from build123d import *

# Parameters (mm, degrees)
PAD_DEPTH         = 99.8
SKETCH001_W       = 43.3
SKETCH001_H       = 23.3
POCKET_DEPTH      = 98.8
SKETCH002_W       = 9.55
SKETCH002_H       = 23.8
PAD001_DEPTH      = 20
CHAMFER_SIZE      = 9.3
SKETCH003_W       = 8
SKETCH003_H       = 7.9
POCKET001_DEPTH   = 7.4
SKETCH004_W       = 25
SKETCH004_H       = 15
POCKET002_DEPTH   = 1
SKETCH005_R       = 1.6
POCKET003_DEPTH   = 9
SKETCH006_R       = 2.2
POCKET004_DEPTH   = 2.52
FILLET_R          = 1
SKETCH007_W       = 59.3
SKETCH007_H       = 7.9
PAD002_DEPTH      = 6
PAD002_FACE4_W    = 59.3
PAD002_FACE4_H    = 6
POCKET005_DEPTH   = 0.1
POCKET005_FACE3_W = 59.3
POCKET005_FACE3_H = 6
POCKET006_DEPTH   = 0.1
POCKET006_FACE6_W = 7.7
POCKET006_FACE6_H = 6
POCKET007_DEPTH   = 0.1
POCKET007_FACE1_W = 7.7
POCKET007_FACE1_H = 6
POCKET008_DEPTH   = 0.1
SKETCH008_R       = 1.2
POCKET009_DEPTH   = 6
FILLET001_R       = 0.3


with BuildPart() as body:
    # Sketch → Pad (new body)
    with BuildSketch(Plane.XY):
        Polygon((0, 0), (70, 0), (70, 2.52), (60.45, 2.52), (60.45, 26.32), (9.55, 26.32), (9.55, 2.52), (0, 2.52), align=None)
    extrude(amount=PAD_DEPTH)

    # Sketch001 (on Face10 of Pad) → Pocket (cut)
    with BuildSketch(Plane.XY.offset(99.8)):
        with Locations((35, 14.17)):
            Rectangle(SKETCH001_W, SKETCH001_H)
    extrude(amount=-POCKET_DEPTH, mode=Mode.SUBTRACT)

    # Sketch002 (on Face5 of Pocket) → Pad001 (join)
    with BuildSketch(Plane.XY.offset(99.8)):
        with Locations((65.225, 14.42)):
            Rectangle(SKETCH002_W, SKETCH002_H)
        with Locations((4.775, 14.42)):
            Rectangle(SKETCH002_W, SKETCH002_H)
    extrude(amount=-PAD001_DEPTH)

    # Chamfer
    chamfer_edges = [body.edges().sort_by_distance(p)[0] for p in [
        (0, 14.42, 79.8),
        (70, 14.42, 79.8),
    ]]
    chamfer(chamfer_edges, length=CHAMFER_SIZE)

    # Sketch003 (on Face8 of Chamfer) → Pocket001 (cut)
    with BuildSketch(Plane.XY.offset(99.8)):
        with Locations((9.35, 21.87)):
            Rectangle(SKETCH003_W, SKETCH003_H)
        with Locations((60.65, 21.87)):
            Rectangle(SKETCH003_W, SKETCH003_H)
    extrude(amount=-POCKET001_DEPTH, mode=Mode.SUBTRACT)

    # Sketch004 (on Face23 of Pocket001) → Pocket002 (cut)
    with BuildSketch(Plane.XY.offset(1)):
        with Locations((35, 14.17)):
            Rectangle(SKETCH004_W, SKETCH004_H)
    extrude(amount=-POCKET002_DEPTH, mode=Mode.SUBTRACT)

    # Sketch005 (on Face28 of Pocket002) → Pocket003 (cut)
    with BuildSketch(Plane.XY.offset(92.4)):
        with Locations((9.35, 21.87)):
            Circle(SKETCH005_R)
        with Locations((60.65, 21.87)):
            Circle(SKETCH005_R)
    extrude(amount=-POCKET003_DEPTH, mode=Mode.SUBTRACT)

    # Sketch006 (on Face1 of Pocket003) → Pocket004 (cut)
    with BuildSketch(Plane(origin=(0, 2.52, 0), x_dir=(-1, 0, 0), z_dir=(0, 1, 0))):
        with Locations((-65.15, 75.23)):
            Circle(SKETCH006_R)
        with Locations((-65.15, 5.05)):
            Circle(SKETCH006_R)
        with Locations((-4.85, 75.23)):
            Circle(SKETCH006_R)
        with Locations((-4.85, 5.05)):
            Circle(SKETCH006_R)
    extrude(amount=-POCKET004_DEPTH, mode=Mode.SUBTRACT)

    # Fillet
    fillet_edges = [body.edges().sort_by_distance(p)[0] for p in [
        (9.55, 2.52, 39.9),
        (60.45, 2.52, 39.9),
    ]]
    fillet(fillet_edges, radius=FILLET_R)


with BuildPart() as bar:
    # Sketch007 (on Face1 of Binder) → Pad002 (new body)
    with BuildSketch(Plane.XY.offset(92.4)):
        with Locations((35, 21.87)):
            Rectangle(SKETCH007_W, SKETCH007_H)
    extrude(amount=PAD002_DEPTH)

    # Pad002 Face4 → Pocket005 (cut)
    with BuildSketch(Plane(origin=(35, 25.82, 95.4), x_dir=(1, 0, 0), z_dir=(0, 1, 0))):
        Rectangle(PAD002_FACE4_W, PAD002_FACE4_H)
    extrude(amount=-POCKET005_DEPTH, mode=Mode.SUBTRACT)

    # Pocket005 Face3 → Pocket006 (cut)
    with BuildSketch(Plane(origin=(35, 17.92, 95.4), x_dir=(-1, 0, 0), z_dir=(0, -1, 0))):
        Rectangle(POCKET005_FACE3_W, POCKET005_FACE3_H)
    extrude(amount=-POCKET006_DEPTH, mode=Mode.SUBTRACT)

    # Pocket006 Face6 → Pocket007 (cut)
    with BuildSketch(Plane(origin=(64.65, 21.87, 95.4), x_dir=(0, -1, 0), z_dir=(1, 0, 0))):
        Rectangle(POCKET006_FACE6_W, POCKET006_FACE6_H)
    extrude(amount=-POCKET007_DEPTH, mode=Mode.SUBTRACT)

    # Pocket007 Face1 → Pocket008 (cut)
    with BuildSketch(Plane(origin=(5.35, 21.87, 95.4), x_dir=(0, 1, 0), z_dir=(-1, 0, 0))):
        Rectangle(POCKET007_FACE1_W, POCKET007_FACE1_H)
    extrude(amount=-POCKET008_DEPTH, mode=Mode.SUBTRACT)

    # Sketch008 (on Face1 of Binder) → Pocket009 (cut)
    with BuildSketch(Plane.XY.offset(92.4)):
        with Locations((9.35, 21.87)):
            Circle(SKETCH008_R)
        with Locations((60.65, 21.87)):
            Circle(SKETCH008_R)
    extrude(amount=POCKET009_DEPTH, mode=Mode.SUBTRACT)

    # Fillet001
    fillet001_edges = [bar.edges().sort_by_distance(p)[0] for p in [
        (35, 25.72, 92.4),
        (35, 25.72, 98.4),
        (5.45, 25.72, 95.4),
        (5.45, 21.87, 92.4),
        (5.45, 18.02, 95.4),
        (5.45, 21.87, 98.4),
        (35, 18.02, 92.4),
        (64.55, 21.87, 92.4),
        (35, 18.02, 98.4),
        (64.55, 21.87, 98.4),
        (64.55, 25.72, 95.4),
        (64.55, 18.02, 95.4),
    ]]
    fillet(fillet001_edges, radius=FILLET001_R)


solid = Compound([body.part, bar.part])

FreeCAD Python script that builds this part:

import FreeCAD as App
import Part
import Sketcher
from FreeCAD import Vector
Q = App.Units.Quantity


def edges_at(feature, points):
    """Names of the edges that pass closest to the given points."""
    edges = feature.Shape.Edges
    near = lambda p: min(range(len(edges)), key=lambda i: edges[i].distToShape(Part.Vertex(*p))[0])
    return sorted({f"Edge{near(p) + 1}" for p in points})


def add_polygon(sketch, points):
    """Adds a closed chain of lines whose ends are joined by coincident constraints."""
    first, n = sketch.GeometryCount, len(points)
    for a, b in zip(points, points[1:] + points[:1]):
        sketch.addGeometry(Part.LineSegment(App.Vector(*a, 0), App.Vector(*b, 0)), False)
    for i in range(n):
        sketch.addConstraint(Sketcher.Constraint("Coincident", first + i, 2, first + (i + 1) % n, 1))

doc = App.newDocument("Part")
body = doc.addObject("PartDesign::Body", "Body")

sketch1 = doc.addObject("Sketcher::SketchObject", "Sketch")
body.addObject(sketch1)
sketch1.AttachmentSupport = (doc.XY_Plane, [""])
sketch1.MapMode = "FlatFace"
add_polygon(sketch1, [(0, 0), (70, 0), (70, 2.52), (60.45, 2.52), (60.45, 26.32), (9.55, 26.32), (9.55, 2.52), (0, 2.52)])
sketch1.addConstraint([
    Sketcher.Constraint("Horizontal", 0),
    Sketcher.Constraint("Vertical", 1),
    Sketcher.Constraint("Horizontal", 2),
    Sketcher.Constraint("Vertical", 3),
    Sketcher.Constraint("Horizontal", 4),
    Sketcher.Constraint("Vertical", 5),
    Sketcher.Constraint("Horizontal", 6),
    Sketcher.Constraint("Vertical", 7),
    Sketcher.Constraint("Coincident", 7, 2, -1, 1),
    Sketcher.Constraint("Horizontal", 2, 2, 5, 2),
    Sketcher.Constraint("Equal", 2, 6),
    Sketcher.Constraint("DistanceX", 0, 1, 0, 2, Q("70 mm")),
    Sketcher.Constraint("DistanceX", 4, 2, 4, 1, Q("50.9 mm")),
    Sketcher.Constraint("DistanceY", 3, 1, 3, 2, Q("23.8 mm")),
    Sketcher.Constraint("DistanceY", 1, 1, 1, 2, Q("2.52 mm")),
])
pad1 = doc.addObject("PartDesign::Pad", "Pad")
body.addObject(pad1)
pad1.Profile = sketch1
pad1.Length = 99.8

sketch2 = doc.addObject("Sketcher::SketchObject", "Sketch001")
body.addObject(sketch2)
sketch2.AttachmentSupport = (doc.XY_Plane, [""])
sketch2.MapMode = "FlatFace"
sketch2.AttachmentOffset = App.Placement(Vector(0, 0, 99.8), App.Rotation())
add_polygon(sketch2, [(13.35, 25.82), (13.35, 2.52), (56.65, 2.52), (56.65, 25.82)])
sketch2.addConstraint([
    Sketcher.Constraint("Vertical", 0),
    Sketcher.Constraint("Horizontal", 1),
    Sketcher.Constraint("Vertical", 2),
    Sketcher.Constraint("Horizontal", 3),
    Sketcher.Constraint("DistanceX", 1, 1, 1, 2, Q("43.3 mm")),
    Sketcher.Constraint("DistanceY", 0, 2, 0, 1, Q("23.3 mm")),
    Sketcher.Constraint("DistanceX", -1, 1, 0, 2, Q("13.35 mm")),
    Sketcher.Constraint("DistanceY", -1, 1, 0, 2, Q("2.52 mm")),
])
pocket1 = doc.addObject("PartDesign::Pocket", "Pocket")
body.addObject(pocket1)
pocket1.Profile = sketch2
pocket1.Length = 98.8

sketch3 = doc.addObject("Sketcher::SketchObject", "Sketch002")
body.addObject(sketch3)
sketch3.AttachmentSupport = (doc.XY_Plane, [""])
sketch3.MapMode = "FlatFace"
sketch3.AttachmentOffset = App.Placement(Vector(0, 0, 99.8), App.Rotation())
add_polygon(sketch3, [(60.45, 26.32), (60.45, 2.52), (70, 2.52), (70, 26.32)])
add_polygon(sketch3, [(0, 26.32), (0, 2.52), (9.55, 2.52), (9.55, 26.32)])
sketch3.addConstraint([
    Sketcher.Constraint("Vertical", 0),
    Sketcher.Constraint("Horizontal", 1),
    Sketcher.Constraint("Vertical", 2),
    Sketcher.Constraint("Horizontal", 3),
    Sketcher.Constraint("Vertical", 4),
    Sketcher.Constraint("Horizontal", 5),
    Sketcher.Constraint("Vertical", 6),
    Sketcher.Constraint("Horizontal", 7),
    Sketcher.Constraint("PointOnObject", 4, 2, -2),
    Sketcher.Constraint("Horizontal", 1, 2, 4, 2),
    Sketcher.Constraint("Horizontal", 3, 2, 6, 2),
    Sketcher.Constraint("Equal", 3, 5),
    Sketcher.Constraint("DistanceY", 0, 2, 0, 1, Q("23.8 mm")),
    Sketcher.Constraint("DistanceX", -1, 1, 1, 2, Q("70 mm")),
    Sketcher.Constraint("DistanceX", 1, 1, 1, 2, Q("9.55 mm")),
    Sketcher.Constraint("DistanceY", -1, 1, 0, 2, Q("2.52 mm")),
])
pad2 = doc.addObject("PartDesign::Pad", "Pad001")
body.addObject(pad2)
pad2.Profile = sketch3
pad2.Length = 20
pad2.Reversed = True
doc.recompute()

chamfer = doc.addObject("PartDesign::Chamfer", "Chamfer")
body.addObject(chamfer)
chamfer.Base = (pad2, edges_at(pad2, [(0, 14.42, 79.8), (70, 14.42, 79.8)]))
chamfer.Size = 9.3

sketch4 = doc.addObject("Sketcher::SketchObject", "Sketch003")
body.addObject(sketch4)
sketch4.AttachmentSupport = (doc.XY_Plane, [""])
sketch4.MapMode = "FlatFace"
sketch4.AttachmentOffset = App.Placement(Vector(0, 0, 99.8), App.Rotation())
add_polygon(sketch4, [(5.35, 25.82), (5.35, 17.92), (13.35, 17.92), (13.35, 25.82)])
add_polygon(sketch4, [(56.65, 25.82), (56.65, 17.92), (64.65, 17.92), (64.65, 25.82)])
sketch4.addConstraint([
    Sketcher.Constraint("Vertical", 0),
    Sketcher.Constraint("Horizontal", 1),
    Sketcher.Constraint("Vertical", 2),
    Sketcher.Constraint("Horizontal", 3),
    Sketcher.Constraint("Vertical", 4),
    Sketcher.Constraint("Horizontal", 5),
    Sketcher.Constraint("Vertical", 6),
    Sketcher.Constraint("Horizontal", 7),
    Sketcher.Constraint("Horizontal", 1, 2, 4, 2),
    Sketcher.Constraint("Horizontal", 3, 2, 6, 2),
    Sketcher.Constraint("Equal", 3, 5),
    Sketcher.Constraint("DistanceX", 1, 1, 1, 2, Q("8 mm")),
    Sketcher.Constraint("DistanceY", 0, 2, 0, 1, Q("7.9 mm")),
    Sketcher.Constraint("DistanceX", 1, 2, 4, 2, Q("43.3 mm")),
    Sketcher.Constraint("DistanceX", -1, 1, 0, 2, Q("5.35 mm")),
    Sketcher.Constraint("DistanceY", -1, 1, 0, 2, Q("17.92 mm")),
])
pocket2 = doc.addObject("PartDesign::Pocket", "Pocket001")
body.addObject(pocket2)
pocket2.Profile = sketch4
pocket2.Length = 7.4

sketch5 = doc.addObject("Sketcher::SketchObject", "Sketch004")
body.addObject(sketch5)
sketch5.AttachmentSupport = (doc.XY_Plane, [""])
sketch5.MapMode = "FlatFace"
sketch5.AttachmentOffset = App.Placement(Vector(0, 0, 1), App.Rotation())
add_polygon(sketch5, [(22.5, 21.67), (22.5, 6.67), (47.5, 6.67), (47.5, 21.67)])
sketch5.addConstraint([
    Sketcher.Constraint("Vertical", 0),
    Sketcher.Constraint("Horizontal", 1),
    Sketcher.Constraint("Vertical", 2),
    Sketcher.Constraint("Horizontal", 3),
    Sketcher.Constraint("DistanceX", 1, 1, 1, 2, Q("25 mm")),
    Sketcher.Constraint("DistanceY", 0, 2, 0, 1, Q("15 mm")),
    Sketcher.Constraint("DistanceX", -1, 1, 0, 2, Q("22.5 mm")),
    Sketcher.Constraint("DistanceY", -1, 1, 0, 2, Q("6.67 mm")),
])
pocket3 = doc.addObject("PartDesign::Pocket", "Pocket002")
body.addObject(pocket3)
pocket3.Profile = sketch5
pocket3.Length = 1

sketch6 = doc.addObject("Sketcher::SketchObject", "Sketch005")
body.addObject(sketch6)
sketch6.AttachmentSupport = (doc.XY_Plane, [""])
sketch6.MapMode = "FlatFace"
sketch6.AttachmentOffset = App.Placement(Vector(0, 0, 92.4), App.Rotation())
sketch6.addGeometry([
    Part.Circle(Vector(9.35, 21.87, 0), Vector(0, 0, 1), 1.6),
    Part.Circle(Vector(60.65, 21.87, 0), Vector(0, 0, 1), 1.6),
], False)
sketch6.addConstraint([
    Sketcher.Constraint("Equal", 0, 1),
    Sketcher.Constraint("Horizontal", 0, 3, 1, 3),
    Sketcher.Constraint("Diameter", 0, Q("3.2 mm")),
    Sketcher.Constraint("DistanceX", 0, 3, 1, 3, Q("51.3 mm")),
    Sketcher.Constraint("DistanceX", -1, 1, 0, 3, Q("9.35 mm")),
    Sketcher.Constraint("DistanceY", -1, 1, 0, 3, Q("21.87 mm")),
])
pocket4 = doc.addObject("PartDesign::Pocket", "Pocket003")
body.addObject(pocket4)
pocket4.Profile = sketch6
pocket4.Length = 9

sketch7 = doc.addObject("Sketcher::SketchObject", "Sketch006")
body.addObject(sketch7)
sketch7.AttachmentSupport = (doc.XZ_Plane, [""])
sketch7.MapMode = "FlatFace"
sketch7.AttachmentOffset = App.Placement(Vector(0, 0, -2.52), App.Rotation())
sketch7.addGeometry([
    Part.Circle(Vector(65.15, 75.23, 0), Vector(0, 0, 1), 2.2),
    Part.Circle(Vector(65.15, 5.05, 0), Vector(0, 0, 1), 2.2),
    Part.Circle(Vector(4.85, 75.23, 0), Vector(0, 0, 1), 2.2),
    Part.Circle(Vector(4.85, 5.05, 0), Vector(0, 0, 1), 2.2),
], False)
sketch7.addConstraint([
    Sketcher.Constraint("Equal", 0, 1),
    Sketcher.Constraint("Equal", 1, 2),
    Sketcher.Constraint("Equal", 2, 3),
    Sketcher.Constraint("Horizontal", 0, 3, 2, 3),
    Sketcher.Constraint("Horizontal", 1, 3, 3, 3),
    Sketcher.Constraint("Vertical", 0, 3, 1, 3),
    Sketcher.Constraint("Vertical", 2, 3, 3, 3),
    Sketcher.Constraint("Diameter", 0, Q("4.4 mm")),
    Sketcher.Constraint("DistanceX", 2, 3, 0, 3, Q("60.3 mm")),
    Sketcher.Constraint("DistanceX", -1, 1, 0, 3, Q("65.15 mm")),
    Sketcher.Constraint("DistanceY", -1, 1, 0, 3, Q("75.23 mm")),
    Sketcher.Constraint("DistanceY", -1, 1, 1, 3, Q("5.05 mm")),
])
pocket5 = doc.addObject("PartDesign::Pocket", "Pocket004")
body.addObject(pocket5)
pocket5.Profile = sketch7
pocket5.Length = 2.52
pocket5.Reversed = True
doc.recompute()

fillet = doc.addObject("PartDesign::Fillet", "Fillet")
body.addObject(fillet)
fillet.Base = (pocket5, edges_at(pocket5, [(9.55, 2.52, 39.9), (60.45, 2.52, 39.9)]))
fillet.Radius = 1
body2 = doc.addObject("PartDesign::Body", "Body001")

sketch8 = doc.addObject("Sketcher::SketchObject", "Sketch007")
body2.addObject(sketch8)
sketch8.AttachmentSupport = (doc.getObject("XY_Plane001"), [""])
sketch8.MapMode = "FlatFace"
sketch8.AttachmentOffset = App.Placement(Vector(0, 0, 92.4), App.Rotation())
add_polygon(sketch8, [(5.35, 25.82), (5.35, 17.92), (64.65, 17.92), (64.65, 25.82)])
sketch8.addConstraint([
    Sketcher.Constraint("Vertical", 0),
    Sketcher.Constraint("Horizontal", 1),
    Sketcher.Constraint("Vertical", 2),
    Sketcher.Constraint("Horizontal", 3),
    Sketcher.Constraint("DistanceX", 1, 1, 1, 2, Q("59.3 mm")),
    Sketcher.Constraint("DistanceY", 0, 2, 0, 1, Q("7.9 mm")),
    Sketcher.Constraint("DistanceX", -1, 1, 0, 2, Q("5.35 mm")),
    Sketcher.Constraint("DistanceY", -1, 1, 0, 2, Q("17.92 mm")),
])
pad3 = doc.addObject("PartDesign::Pad", "Pad002")
body2.addObject(pad3)
pad3.Profile = sketch8
pad3.Length = 6

sketch9 = doc.addObject("Sketcher::SketchObject", "Sketch008")
body2.addObject(sketch9)
sketch9.AttachmentSupport = (doc.getObject("XZ_Plane001"), [""])
sketch9.MapMode = "FlatFace"
sketch9.AttachmentOffset = App.Placement(Vector(0, 0, -25.82), App.Rotation())
add_polygon(sketch9, [(5.35, 92.4), (5.35, 98.4), (64.65, 98.4), (64.65, 92.4)])
sketch9.addConstraint([
    Sketcher.Constraint("Vertical", 0),
    Sketcher.Constraint("Horizontal", 1),
    Sketcher.Constraint("Vertical", 2),
    Sketcher.Constraint("Horizontal", 3),
    Sketcher.Constraint("DistanceY", 0, 1, 0, 2, Q("6 mm")),
    Sketcher.Constraint("DistanceX", 1, 1, 1, 2, Q("59.3 mm")),
    Sketcher.Constraint("DistanceY", -1, 1, 0, 2, Q("98.4 mm")),
    Sketcher.Constraint("DistanceX", -1, 1, 0, 2, Q("5.35 mm")),
])
pocket6 = doc.addObject("PartDesign::Pocket", "Pocket005")
body2.addObject(pocket6)
pocket6.Profile = sketch9
pocket6.Length = 0.1
pocket6.Reversed = True

sketch10 = doc.addObject("Sketcher::SketchObject", "Sketch009")
body2.addObject(sketch10)
sketch10.AttachmentSupport = (doc.getObject("XZ_Plane001"), [""])
sketch10.MapMode = "FlatFace"
sketch10.AttachmentOffset = App.Placement(Vector(0, 0, -17.92), App.Rotation())
add_polygon(sketch10, [(64.65, 92.4), (64.65, 98.4), (5.35, 98.4), (5.35, 92.4)])
sketch10.addConstraint([
    Sketcher.Constraint("Vertical", 0),
    Sketcher.Constraint("Horizontal", 1),
    Sketcher.Constraint("Vertical", 2),
    Sketcher.Constraint("Horizontal", 3),
    Sketcher.Constraint("DistanceY", 0, 1, 0, 2, Q("6 mm")),
    Sketcher.Constraint("DistanceX", 1, 2, 1, 1, Q("59.3 mm")),
    Sketcher.Constraint("DistanceY", -1, 1, 0, 2, Q("98.4 mm")),
    Sketcher.Constraint("DistanceX", -1, 1, 0, 2, Q("64.65 mm")),
])
pocket7 = doc.addObject("PartDesign::Pocket", "Pocket006")
body2.addObject(pocket7)
pocket7.Profile = sketch10
pocket7.Length = 0.1

sketch11 = doc.addObject("Sketcher::SketchObject", "Sketch010")
body2.addObject(sketch11)
sketch11.AttachmentSupport = (doc.getObject("YZ_Plane001"), [""])
sketch11.MapMode = "FlatFace"
sketch11.AttachmentOffset = App.Placement(Vector(0, 0, 64.65), App.Rotation())
add_polygon(sketch11, [(25.72, 92.4), (25.72, 98.4), (18.02, 98.4), (18.02, 92.4)])
sketch11.addConstraint([
    Sketcher.Constraint("Vertical", 0),
    Sketcher.Constraint("Horizontal", 1),
    Sketcher.Constraint("Vertical", 2),
    Sketcher.Constraint("Horizontal", 3),
    Sketcher.Constraint("DistanceY", 0, 1, 0, 2, Q("6 mm")),
    Sketcher.Constraint("DistanceX", 1, 2, 1, 1, Q("7.7 mm")),
    Sketcher.Constraint("DistanceY", -1, 1, 0, 2, Q("98.4 mm")),
    Sketcher.Constraint("DistanceX", -1, 1, 0, 2, Q("25.72 mm")),
])
pocket8 = doc.addObject("PartDesign::Pocket", "Pocket007")
body2.addObject(pocket8)
pocket8.Profile = sketch11
pocket8.Length = 0.1

sketch12 = doc.addObject("Sketcher::SketchObject", "Sketch011")
body2.addObject(sketch12)
sketch12.AttachmentSupport = (doc.getObject("YZ_Plane001"), [""])
sketch12.MapMode = "FlatFace"
sketch12.AttachmentOffset = App.Placement(Vector(0, 0, 5.35), App.Rotation())
add_polygon(sketch12, [(18.02, 92.4), (18.02, 98.4), (25.72, 98.4), (25.72, 92.4)])
sketch12.addConstraint([
    Sketcher.Constraint("Vertical", 0),
    Sketcher.Constraint("Horizontal", 1),
    Sketcher.Constraint("Vertical", 2),
    Sketcher.Constraint("Horizontal", 3),
    Sketcher.Constraint("DistanceY", 0, 1, 0, 2, Q("6 mm")),
    Sketcher.Constraint("DistanceX", 1, 1, 1, 2, Q("7.7 mm")),
    Sketcher.Constraint("DistanceY", -1, 1, 0, 2, Q("98.4 mm")),
    Sketcher.Constraint("DistanceX", -1, 1, 0, 2, Q("18.02 mm")),
])
pocket9 = doc.addObject("PartDesign::Pocket", "Pocket008")
body2.addObject(pocket9)
pocket9.Profile = sketch12
pocket9.Length = 0.1
pocket9.Reversed = True

sketch13 = doc.addObject("Sketcher::SketchObject", "Sketch012")
body2.addObject(sketch13)
sketch13.AttachmentSupport = (doc.getObject("XY_Plane001"), [""])
sketch13.MapMode = "FlatFace"
sketch13.AttachmentOffset = App.Placement(Vector(0, 0, 92.4), App.Rotation())
sketch13.addGeometry([
    Part.Circle(Vector(9.35, 21.87, 0), Vector(0, 0, 1), 1.2),
    Part.Circle(Vector(60.65, 21.87, 0), Vector(0, 0, 1), 1.2),
], False)
sketch13.addConstraint([
    Sketcher.Constraint("Equal", 0, 1),
    Sketcher.Constraint("Horizontal", 0, 3, 1, 3),
    Sketcher.Constraint("Diameter", 0, Q("2.4 mm")),
    Sketcher.Constraint("DistanceX", 0, 3, 1, 3, Q("51.3 mm")),
    Sketcher.Constraint("DistanceX", -1, 1, 0, 3, Q("9.35 mm")),
    Sketcher.Constraint("DistanceY", -1, 1, 0, 3, Q("21.87 mm")),
])
pocket10 = doc.addObject("PartDesign::Pocket", "Pocket009")
body2.addObject(pocket10)
pocket10.Profile = sketch13
pocket10.Length = 6
pocket10.Reversed = True
doc.recompute()

fillet2 = doc.addObject("PartDesign::Fillet", "Fillet001")
body2.addObject(fillet2)
fillet2.Base = (pocket10, edges_at(pocket10, [
    (35, 25.72, 92.4),
    (35, 25.72, 98.4),
    (5.45, 25.72, 95.4),
    (5.45, 21.87, 92.4),
    (5.45, 18.02, 95.4),
    (5.45, 21.87, 98.4),
    (35, 18.02, 92.4),
    (64.55, 21.87, 92.4),
    (35, 18.02, 98.4),
    (64.55, 21.87, 98.4),
    (64.55, 25.72, 95.4),
    (64.55, 18.02, 95.4),
]))
fillet2.Radius = 0.3

doc.recompute()
